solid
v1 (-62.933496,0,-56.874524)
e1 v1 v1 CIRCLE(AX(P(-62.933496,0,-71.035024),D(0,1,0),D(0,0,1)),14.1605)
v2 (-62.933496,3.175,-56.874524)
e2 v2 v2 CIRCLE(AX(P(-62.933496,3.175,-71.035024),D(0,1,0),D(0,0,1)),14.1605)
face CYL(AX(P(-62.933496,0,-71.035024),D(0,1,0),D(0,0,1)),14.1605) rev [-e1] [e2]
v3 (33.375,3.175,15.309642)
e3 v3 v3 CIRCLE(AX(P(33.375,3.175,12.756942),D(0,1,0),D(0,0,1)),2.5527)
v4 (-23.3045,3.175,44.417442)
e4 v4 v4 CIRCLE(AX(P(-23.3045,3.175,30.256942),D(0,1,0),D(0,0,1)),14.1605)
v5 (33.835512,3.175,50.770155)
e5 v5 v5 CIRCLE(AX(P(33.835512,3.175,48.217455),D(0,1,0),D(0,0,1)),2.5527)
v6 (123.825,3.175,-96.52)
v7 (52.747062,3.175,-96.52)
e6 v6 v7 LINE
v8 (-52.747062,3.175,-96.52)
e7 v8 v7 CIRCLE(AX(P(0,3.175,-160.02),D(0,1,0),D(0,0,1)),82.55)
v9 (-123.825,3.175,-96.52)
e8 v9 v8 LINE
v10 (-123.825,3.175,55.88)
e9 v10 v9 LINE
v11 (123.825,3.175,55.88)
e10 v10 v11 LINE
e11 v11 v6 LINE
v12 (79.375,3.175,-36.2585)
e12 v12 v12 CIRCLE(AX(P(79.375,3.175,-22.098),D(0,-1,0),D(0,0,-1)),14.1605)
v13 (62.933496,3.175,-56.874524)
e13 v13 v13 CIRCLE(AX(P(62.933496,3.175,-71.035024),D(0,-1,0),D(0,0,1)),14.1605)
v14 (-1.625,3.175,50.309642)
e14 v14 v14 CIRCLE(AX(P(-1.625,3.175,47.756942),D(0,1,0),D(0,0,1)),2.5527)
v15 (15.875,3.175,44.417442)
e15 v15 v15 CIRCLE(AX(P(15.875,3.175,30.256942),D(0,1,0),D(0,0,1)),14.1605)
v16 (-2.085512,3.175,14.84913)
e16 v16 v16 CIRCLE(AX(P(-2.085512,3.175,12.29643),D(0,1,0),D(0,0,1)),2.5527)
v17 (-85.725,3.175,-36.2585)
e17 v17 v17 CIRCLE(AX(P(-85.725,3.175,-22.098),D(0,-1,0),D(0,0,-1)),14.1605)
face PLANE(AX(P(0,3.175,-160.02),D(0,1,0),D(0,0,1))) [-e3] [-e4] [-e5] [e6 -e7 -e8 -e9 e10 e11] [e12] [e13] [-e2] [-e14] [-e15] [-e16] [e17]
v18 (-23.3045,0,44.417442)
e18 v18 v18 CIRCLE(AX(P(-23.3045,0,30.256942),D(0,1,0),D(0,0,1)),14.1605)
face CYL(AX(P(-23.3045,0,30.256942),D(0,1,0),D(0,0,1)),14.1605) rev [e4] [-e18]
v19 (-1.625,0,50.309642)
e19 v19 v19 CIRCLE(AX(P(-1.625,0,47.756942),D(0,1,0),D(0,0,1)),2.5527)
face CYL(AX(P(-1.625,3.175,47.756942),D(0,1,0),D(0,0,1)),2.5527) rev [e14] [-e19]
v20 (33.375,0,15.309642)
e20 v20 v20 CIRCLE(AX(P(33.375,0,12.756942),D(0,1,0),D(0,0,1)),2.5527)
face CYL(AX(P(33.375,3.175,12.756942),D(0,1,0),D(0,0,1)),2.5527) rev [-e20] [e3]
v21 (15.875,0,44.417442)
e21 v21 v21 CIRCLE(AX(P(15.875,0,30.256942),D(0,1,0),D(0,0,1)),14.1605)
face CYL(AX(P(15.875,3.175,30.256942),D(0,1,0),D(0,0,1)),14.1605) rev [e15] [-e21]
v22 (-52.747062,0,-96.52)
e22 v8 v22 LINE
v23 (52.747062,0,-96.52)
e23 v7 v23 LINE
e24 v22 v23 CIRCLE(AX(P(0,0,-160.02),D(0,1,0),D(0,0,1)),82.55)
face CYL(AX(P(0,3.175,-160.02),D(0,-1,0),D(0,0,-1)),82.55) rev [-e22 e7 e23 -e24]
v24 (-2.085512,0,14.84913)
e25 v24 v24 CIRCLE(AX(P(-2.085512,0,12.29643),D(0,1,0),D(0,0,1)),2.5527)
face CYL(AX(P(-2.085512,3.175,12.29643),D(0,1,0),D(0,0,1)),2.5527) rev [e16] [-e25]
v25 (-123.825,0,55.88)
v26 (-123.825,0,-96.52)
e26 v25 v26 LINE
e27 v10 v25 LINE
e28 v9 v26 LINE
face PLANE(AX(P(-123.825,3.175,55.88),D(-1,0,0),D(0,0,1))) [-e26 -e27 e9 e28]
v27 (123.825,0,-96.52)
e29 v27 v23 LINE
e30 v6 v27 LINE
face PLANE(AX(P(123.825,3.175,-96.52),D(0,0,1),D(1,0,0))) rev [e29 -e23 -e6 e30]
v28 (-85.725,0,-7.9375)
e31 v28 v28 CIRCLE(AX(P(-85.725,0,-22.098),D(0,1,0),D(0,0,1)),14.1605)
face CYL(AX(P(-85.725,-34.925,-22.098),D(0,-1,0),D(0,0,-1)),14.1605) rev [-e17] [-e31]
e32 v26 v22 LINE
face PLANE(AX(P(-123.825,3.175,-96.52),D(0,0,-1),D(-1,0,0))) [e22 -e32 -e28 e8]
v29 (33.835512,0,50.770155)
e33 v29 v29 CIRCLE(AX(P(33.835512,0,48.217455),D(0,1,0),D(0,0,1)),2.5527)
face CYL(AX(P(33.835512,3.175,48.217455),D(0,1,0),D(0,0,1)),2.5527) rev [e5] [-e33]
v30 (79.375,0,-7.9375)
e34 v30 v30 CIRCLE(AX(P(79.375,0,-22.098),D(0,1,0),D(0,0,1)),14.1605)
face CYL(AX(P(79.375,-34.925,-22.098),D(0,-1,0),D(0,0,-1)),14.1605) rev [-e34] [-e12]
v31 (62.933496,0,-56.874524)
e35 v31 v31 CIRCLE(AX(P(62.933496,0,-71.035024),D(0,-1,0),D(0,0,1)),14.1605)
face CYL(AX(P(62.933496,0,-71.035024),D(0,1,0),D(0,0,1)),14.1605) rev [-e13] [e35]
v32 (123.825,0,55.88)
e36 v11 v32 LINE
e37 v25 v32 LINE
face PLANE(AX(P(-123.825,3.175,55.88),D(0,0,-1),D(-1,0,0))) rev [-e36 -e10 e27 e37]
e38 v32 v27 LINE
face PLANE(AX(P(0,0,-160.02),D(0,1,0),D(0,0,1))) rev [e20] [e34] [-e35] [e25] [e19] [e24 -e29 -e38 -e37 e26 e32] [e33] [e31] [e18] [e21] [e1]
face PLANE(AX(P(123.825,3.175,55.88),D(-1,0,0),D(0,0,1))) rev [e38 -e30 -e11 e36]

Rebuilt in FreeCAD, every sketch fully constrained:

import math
import FreeCAD as App
import Part
import Sketcher
Q = App.Units.Quantity

doc = App.newDocument("Part")
params = doc.addObject("Spreadsheet::Sheet", "Params")
for row, (alias, value) in enumerate([
    ("sketch1_height", "6 in"),
    ("sketch1_radius", "3.25 in"),
    ("sketch1_width", "9.75 in"),
    ("pad1_length", "0.125 in"),
    ("sketch2_diameter", "1.115 in"),
    ("hole_diameter", "1.115 in"),
    ("sketch3_diameter", "0.201 in"),
    ("hole2_diameter", "0.201 in"),
    ("sketch4_diameter", "1.115 in"),
    ("hole3_diameter", "1.115 in"),
    ("sketch5_diameter", "1.115 in"),
    ("sketch6_diameter", "1.115 in"),
], start=1):
    params.set(f"A{row}", alias)
    params.set(f"B{row}", "=" + value)
    params.setAlias(f"B{row}", alias)

body = doc.addObject("PartDesign::Body", "Body")

sketch1 = body.newObject("Sketcher::SketchObject", "Sketch")
sketch1.AttachmentSupport = (doc.getObject("XZ_Plane"), [""])
sketch1.MapMode = "FlatFace"
sketch1.addGeometry([
    Part.LineSegment(App.Vector(-124, 56, 0), App.Vector(124, 56, 0)),
    Part.LineSegment(App.Vector(124, 56, 0), App.Vector(124, -97, 0)),
    Part.LineSegment(App.Vector(124, -97, 0), App.Vector(53, -97, 0)),
    Part.ArcOfCircle(Part.Circle(App.Vector(0, -160, 0), App.Vector(0, 0, 1), 83), math.radians(50), math.radians(130)),
    Part.LineSegment(App.Vector(-53, -97, 0), App.Vector(-124, -97, 0)),
    Part.LineSegment(App.Vector(-124, -97, 0), App.Vector(-124, 56, 0)),
], False)
sketch1.addConstraint([
    Sketcher.Constraint("Coincident", 0, 2, 1, 1),
    Sketcher.Constraint("Coincident", 1, 2, 2, 1),
    Sketcher.Constraint("Coincident", 2, 2, 3, 1),
    Sketcher.Constraint("Coincident", 3, 2, 4, 1),
    Sketcher.Constraint("Coincident", 4, 2, 5, 1),
    Sketcher.Constraint("Coincident", 5, 2, 0, 1),
    Sketcher.Constraint("Horizontal", 0),
    Sketcher.Constraint("Vertical", 1),
    Sketcher.Constraint("Horizontal", 2),
    Sketcher.Constraint("Horizontal", 4),
    Sketcher.Constraint("Vertical", 5),
    Sketcher.Constraint("Symmetric", 2, 2, 3, 2, -2),
    Sketcher.Constraint("Equal", 2, 4),
    Sketcher.Constraint("DistanceY", 1, 2, 1, 1, Q("6 in")),
    Sketcher.Constraint("Radius", 3, Q("3.25 in")),
    Sketcher.Constraint("DistanceX", 0, 1, 0, 2, Q("9.75 in")),
    Sketcher.Constraint("DistanceY", 3, 3, -1, 1, Q("6.3 in")),
    Sketcher.Constraint("DistanceY", -1, 1, 0, 2, Q("2.2 in")),
])
sketch1.setExpression("Constraints[13]", "Params.sketch1_height")
sketch1.setExpression("Constraints[14]", "Params.sketch1_radius")
sketch1.setExpression("Constraints[15]", "Params.sketch1_width")
pad1 = body.newObject("PartDesign::Pad", "Pad")
pad1.Profile = sketch1
pad1.setExpression("Length", "Params.pad1_length")
pad1.Reversed = True

sketch2 = body.newObject("Sketcher::SketchObject", "Sketch001")
sketch2.AttachmentSupport = (doc.getObject("XZ_Plane"), [""])
sketch2.MapMode = "FlatFace"
sketch2.AttachmentOffset = App.Placement(App.Vector(0, 0, -0.125 * 25.4), App.Rotation())
sketch2.addGeometry(Part.Circle(App.Vector(16, 30, 0), App.Vector(0, 0, 1), 14), False)
sketch2.addConstraint([
    Sketcher.Constraint("Diameter", 0, Q("1.115 in")),
    Sketcher.Constraint("DistanceX", -1, 1, 0, 3, Q("0.625 in")),
    Sketcher.Constraint("DistanceY", -1, 1, 0, 3, 30.256942),
])
sketch2.setExpression("Constraints[0]", "Params.sketch2_diameter")
doc.recompute()
hole = body.newObject("PartDesign::Hole", "Hole")
hole.Profile = sketch2
hole.ThreadType = "None"
hole.setExpression("Diameter", "Params.hole_diameter")
hole.DepthType = "ThroughAll"
hole.Reversed = True

sketch3 = body.newObject("Sketcher::SketchObject", "Sketch002")
sketch3.AttachmentSupport = (doc.getObject("XZ_Plane"), [""])
sketch3.MapMode = "FlatFace"
sketch3.AttachmentOffset = App.Placement(App.Vector(0, 0, -0.125 * 25.4), App.Rotation())
sketch3.addGeometry([
    Part.Circle(App.Vector(-1.6, 47.8, 0), App.Vector(0, 0, 1), 2.6),
    Part.Circle(App.Vector(33.4, 12.8, 0), App.Vector(0, 0, 1), 2.6),
    Part.Circle(App.Vector(-2.1, 12.3, 0), App.Vector(0, 0, 1), 2.6),
    Part.Circle(App.Vector(33.8, 48.2, 0), App.Vector(0, 0, 1), 2.6),
], False)
sketch3.addConstraint([
    Sketcher.Constraint("Equal", 0, 1),
    Sketcher.Constraint("Equal", 1, 2),
    Sketcher.Constraint("Equal", 2, 3),
    Sketcher.Constraint("Diameter", 0, Q("0.201 in")),
    Sketcher.Constraint("DistanceX", 0, 3, -1, 1, 1.625),
    Sketcher.Constraint("DistanceX", -1, 1, 1, 3, 33.375),
    Sketcher.Constraint("DistanceY", 1, 3, 0, 3, 35.0),
    Sketcher.Constraint("DistanceY", -1, 1, 2, 3, 12.29643),
    Sketcher.Constraint("DistanceY", -1, 1, 0, 3, 47.756942),
    Sketcher.Constraint("DistanceX", 2, 3, -1, 1, 2.085512),
    Sketcher.Constraint("DistanceX", -1, 1, 3, 3, 33.835512),
    Sketcher.Constraint("DistanceY", -1, 1, 3, 3, 48.217455),
])
sketch3.setExpression("Constraints[3]", "Params.sketch3_diameter")
doc.recompute()
hole2 = body.newObject("PartDesign::Hole", "Hole001")
hole2.Profile = sketch3
hole2.ThreadType = "None"
hole2.setExpression("Diameter", "Params.hole2_diameter")
hole2.DepthType = "ThroughAll"
hole2.Reversed = True

sketch4 = body.newObject("Sketcher::SketchObject", "Sketch003")
sketch4.AttachmentSupport = (doc.getObject("XZ_Plane"), [""])
sketch4.MapMode = "FlatFace"
sketch4.AttachmentOffset = App.Placement(App.Vector(0, 0, 1.375 * 25.4), App.Rotation())
sketch4.addGeometry([
    Part.Circle(App.Vector(-86, -22, 0), App.Vector(0, 0, 1), 14),
    Part.Circle(App.Vector(79, -22, 0), App.Vector(0, 0, 1), 14),
], False)
sketch4.addConstraint([
    Sketcher.Constraint("Equal", 0, 1),
    Sketcher.Constraint("Horizontal", 0, 3, 1, 3),
    Sketcher.Constraint("Diameter", 0, Q("1.115 in")),
    Sketcher.Constraint("DistanceX", 0, 3, 1, 3, Q("6.5 in")),
    Sketcher.Constraint("DistanceY", 0, 3, -1, 1, Q("0.87 in")),
    Sketcher.Constraint("DistanceX", 0, 3, -1, 1, Q("3.375 in")),
])
sketch4.setExpression("Constraints[2]", "Params.sketch4_diameter")
doc.recompute()
hole3 = body.newObject("PartDesign::Hole", "Hole002")
hole3.Profile = sketch4
hole3.ThreadType = "None"
hole3.setExpression("Diameter", "Params.hole3_diameter")
hole3.DepthType = "ThroughAll"

sketch5 = body.newObject("Sketcher::SketchObject", "Sketch004")
sketch5.AttachmentSupport = (doc.getObject("XZ_Plane"), [""])
sketch5.MapMode = "FlatFace"
sketch5.AttachmentOffset = App.Placement(App.Vector(0, 0, -0.125 * 25.4), App.Rotation())
sketch5.addGeometry(Part.Circle(App.Vector(-23, 30, 0), App.Vector(0, 0, 1), 14), False)
sketch5.addConstraint([
    Sketcher.Constraint("Diameter", 0, Q("1.115 in")),
    Sketcher.Constraint("DistanceX", 0, 3, -1, 1, Q("0.9175 in")),
    Sketcher.Constraint("DistanceY", -1, 1, 0, 3, 30.256942),
])
sketch5.setExpression("Constraints[0]", "Params.sketch5_diameter")
pocket1 = body.newObject("PartDesign::Pocket", "Pocket")
pocket1.Profile = sketch5
pocket1.Type = "ThroughAll"
pocket1.Reversed = True

sketch6 = body.newObject("Sketcher::SketchObject", "Sketch005")
sketch6.AttachmentSupport = (doc.getObject("XZ_Plane"), [""])
sketch6.MapMode = "FlatFace"
sketch6.AttachmentOffset = App.Placement(App.Vector(0, 0, -0.125 * 25.4), App.Rotation())
sketch6.addGeometry(Part.Circle(App.Vector(-63, -71, 0), App.Vector(0, 0, 1), 14), False)
sketch6.addConstraint([
    Sketcher.Constraint("Diameter", 0, Q("1.115 in")),
    Sketcher.Constraint("DistanceX", 0, 3, -1, 1, 62.933496),
    Sketcher.Constraint("DistanceY", 0, 3, -1, 1, 71.035024),
])
sketch6.setExpression("Constraints[0]", "Params.sketch6_diameter")
pocket2 = body.newObject("PartDesign::Pocket", "Pocket001")
pocket2.Profile = sketch6
pocket2.Type = "ThroughAll"
pocket2.Reversed = True
doc.recompute()

mirrored = body.newObject("PartDesign::Mirrored", "Mirrored")
mirrored.Originals = [pocket2]
mirrored.MirrorPlane = (doc.getObject("YZ_Plane"), [""])
body.Tip = mirrored

doc.recompute()
